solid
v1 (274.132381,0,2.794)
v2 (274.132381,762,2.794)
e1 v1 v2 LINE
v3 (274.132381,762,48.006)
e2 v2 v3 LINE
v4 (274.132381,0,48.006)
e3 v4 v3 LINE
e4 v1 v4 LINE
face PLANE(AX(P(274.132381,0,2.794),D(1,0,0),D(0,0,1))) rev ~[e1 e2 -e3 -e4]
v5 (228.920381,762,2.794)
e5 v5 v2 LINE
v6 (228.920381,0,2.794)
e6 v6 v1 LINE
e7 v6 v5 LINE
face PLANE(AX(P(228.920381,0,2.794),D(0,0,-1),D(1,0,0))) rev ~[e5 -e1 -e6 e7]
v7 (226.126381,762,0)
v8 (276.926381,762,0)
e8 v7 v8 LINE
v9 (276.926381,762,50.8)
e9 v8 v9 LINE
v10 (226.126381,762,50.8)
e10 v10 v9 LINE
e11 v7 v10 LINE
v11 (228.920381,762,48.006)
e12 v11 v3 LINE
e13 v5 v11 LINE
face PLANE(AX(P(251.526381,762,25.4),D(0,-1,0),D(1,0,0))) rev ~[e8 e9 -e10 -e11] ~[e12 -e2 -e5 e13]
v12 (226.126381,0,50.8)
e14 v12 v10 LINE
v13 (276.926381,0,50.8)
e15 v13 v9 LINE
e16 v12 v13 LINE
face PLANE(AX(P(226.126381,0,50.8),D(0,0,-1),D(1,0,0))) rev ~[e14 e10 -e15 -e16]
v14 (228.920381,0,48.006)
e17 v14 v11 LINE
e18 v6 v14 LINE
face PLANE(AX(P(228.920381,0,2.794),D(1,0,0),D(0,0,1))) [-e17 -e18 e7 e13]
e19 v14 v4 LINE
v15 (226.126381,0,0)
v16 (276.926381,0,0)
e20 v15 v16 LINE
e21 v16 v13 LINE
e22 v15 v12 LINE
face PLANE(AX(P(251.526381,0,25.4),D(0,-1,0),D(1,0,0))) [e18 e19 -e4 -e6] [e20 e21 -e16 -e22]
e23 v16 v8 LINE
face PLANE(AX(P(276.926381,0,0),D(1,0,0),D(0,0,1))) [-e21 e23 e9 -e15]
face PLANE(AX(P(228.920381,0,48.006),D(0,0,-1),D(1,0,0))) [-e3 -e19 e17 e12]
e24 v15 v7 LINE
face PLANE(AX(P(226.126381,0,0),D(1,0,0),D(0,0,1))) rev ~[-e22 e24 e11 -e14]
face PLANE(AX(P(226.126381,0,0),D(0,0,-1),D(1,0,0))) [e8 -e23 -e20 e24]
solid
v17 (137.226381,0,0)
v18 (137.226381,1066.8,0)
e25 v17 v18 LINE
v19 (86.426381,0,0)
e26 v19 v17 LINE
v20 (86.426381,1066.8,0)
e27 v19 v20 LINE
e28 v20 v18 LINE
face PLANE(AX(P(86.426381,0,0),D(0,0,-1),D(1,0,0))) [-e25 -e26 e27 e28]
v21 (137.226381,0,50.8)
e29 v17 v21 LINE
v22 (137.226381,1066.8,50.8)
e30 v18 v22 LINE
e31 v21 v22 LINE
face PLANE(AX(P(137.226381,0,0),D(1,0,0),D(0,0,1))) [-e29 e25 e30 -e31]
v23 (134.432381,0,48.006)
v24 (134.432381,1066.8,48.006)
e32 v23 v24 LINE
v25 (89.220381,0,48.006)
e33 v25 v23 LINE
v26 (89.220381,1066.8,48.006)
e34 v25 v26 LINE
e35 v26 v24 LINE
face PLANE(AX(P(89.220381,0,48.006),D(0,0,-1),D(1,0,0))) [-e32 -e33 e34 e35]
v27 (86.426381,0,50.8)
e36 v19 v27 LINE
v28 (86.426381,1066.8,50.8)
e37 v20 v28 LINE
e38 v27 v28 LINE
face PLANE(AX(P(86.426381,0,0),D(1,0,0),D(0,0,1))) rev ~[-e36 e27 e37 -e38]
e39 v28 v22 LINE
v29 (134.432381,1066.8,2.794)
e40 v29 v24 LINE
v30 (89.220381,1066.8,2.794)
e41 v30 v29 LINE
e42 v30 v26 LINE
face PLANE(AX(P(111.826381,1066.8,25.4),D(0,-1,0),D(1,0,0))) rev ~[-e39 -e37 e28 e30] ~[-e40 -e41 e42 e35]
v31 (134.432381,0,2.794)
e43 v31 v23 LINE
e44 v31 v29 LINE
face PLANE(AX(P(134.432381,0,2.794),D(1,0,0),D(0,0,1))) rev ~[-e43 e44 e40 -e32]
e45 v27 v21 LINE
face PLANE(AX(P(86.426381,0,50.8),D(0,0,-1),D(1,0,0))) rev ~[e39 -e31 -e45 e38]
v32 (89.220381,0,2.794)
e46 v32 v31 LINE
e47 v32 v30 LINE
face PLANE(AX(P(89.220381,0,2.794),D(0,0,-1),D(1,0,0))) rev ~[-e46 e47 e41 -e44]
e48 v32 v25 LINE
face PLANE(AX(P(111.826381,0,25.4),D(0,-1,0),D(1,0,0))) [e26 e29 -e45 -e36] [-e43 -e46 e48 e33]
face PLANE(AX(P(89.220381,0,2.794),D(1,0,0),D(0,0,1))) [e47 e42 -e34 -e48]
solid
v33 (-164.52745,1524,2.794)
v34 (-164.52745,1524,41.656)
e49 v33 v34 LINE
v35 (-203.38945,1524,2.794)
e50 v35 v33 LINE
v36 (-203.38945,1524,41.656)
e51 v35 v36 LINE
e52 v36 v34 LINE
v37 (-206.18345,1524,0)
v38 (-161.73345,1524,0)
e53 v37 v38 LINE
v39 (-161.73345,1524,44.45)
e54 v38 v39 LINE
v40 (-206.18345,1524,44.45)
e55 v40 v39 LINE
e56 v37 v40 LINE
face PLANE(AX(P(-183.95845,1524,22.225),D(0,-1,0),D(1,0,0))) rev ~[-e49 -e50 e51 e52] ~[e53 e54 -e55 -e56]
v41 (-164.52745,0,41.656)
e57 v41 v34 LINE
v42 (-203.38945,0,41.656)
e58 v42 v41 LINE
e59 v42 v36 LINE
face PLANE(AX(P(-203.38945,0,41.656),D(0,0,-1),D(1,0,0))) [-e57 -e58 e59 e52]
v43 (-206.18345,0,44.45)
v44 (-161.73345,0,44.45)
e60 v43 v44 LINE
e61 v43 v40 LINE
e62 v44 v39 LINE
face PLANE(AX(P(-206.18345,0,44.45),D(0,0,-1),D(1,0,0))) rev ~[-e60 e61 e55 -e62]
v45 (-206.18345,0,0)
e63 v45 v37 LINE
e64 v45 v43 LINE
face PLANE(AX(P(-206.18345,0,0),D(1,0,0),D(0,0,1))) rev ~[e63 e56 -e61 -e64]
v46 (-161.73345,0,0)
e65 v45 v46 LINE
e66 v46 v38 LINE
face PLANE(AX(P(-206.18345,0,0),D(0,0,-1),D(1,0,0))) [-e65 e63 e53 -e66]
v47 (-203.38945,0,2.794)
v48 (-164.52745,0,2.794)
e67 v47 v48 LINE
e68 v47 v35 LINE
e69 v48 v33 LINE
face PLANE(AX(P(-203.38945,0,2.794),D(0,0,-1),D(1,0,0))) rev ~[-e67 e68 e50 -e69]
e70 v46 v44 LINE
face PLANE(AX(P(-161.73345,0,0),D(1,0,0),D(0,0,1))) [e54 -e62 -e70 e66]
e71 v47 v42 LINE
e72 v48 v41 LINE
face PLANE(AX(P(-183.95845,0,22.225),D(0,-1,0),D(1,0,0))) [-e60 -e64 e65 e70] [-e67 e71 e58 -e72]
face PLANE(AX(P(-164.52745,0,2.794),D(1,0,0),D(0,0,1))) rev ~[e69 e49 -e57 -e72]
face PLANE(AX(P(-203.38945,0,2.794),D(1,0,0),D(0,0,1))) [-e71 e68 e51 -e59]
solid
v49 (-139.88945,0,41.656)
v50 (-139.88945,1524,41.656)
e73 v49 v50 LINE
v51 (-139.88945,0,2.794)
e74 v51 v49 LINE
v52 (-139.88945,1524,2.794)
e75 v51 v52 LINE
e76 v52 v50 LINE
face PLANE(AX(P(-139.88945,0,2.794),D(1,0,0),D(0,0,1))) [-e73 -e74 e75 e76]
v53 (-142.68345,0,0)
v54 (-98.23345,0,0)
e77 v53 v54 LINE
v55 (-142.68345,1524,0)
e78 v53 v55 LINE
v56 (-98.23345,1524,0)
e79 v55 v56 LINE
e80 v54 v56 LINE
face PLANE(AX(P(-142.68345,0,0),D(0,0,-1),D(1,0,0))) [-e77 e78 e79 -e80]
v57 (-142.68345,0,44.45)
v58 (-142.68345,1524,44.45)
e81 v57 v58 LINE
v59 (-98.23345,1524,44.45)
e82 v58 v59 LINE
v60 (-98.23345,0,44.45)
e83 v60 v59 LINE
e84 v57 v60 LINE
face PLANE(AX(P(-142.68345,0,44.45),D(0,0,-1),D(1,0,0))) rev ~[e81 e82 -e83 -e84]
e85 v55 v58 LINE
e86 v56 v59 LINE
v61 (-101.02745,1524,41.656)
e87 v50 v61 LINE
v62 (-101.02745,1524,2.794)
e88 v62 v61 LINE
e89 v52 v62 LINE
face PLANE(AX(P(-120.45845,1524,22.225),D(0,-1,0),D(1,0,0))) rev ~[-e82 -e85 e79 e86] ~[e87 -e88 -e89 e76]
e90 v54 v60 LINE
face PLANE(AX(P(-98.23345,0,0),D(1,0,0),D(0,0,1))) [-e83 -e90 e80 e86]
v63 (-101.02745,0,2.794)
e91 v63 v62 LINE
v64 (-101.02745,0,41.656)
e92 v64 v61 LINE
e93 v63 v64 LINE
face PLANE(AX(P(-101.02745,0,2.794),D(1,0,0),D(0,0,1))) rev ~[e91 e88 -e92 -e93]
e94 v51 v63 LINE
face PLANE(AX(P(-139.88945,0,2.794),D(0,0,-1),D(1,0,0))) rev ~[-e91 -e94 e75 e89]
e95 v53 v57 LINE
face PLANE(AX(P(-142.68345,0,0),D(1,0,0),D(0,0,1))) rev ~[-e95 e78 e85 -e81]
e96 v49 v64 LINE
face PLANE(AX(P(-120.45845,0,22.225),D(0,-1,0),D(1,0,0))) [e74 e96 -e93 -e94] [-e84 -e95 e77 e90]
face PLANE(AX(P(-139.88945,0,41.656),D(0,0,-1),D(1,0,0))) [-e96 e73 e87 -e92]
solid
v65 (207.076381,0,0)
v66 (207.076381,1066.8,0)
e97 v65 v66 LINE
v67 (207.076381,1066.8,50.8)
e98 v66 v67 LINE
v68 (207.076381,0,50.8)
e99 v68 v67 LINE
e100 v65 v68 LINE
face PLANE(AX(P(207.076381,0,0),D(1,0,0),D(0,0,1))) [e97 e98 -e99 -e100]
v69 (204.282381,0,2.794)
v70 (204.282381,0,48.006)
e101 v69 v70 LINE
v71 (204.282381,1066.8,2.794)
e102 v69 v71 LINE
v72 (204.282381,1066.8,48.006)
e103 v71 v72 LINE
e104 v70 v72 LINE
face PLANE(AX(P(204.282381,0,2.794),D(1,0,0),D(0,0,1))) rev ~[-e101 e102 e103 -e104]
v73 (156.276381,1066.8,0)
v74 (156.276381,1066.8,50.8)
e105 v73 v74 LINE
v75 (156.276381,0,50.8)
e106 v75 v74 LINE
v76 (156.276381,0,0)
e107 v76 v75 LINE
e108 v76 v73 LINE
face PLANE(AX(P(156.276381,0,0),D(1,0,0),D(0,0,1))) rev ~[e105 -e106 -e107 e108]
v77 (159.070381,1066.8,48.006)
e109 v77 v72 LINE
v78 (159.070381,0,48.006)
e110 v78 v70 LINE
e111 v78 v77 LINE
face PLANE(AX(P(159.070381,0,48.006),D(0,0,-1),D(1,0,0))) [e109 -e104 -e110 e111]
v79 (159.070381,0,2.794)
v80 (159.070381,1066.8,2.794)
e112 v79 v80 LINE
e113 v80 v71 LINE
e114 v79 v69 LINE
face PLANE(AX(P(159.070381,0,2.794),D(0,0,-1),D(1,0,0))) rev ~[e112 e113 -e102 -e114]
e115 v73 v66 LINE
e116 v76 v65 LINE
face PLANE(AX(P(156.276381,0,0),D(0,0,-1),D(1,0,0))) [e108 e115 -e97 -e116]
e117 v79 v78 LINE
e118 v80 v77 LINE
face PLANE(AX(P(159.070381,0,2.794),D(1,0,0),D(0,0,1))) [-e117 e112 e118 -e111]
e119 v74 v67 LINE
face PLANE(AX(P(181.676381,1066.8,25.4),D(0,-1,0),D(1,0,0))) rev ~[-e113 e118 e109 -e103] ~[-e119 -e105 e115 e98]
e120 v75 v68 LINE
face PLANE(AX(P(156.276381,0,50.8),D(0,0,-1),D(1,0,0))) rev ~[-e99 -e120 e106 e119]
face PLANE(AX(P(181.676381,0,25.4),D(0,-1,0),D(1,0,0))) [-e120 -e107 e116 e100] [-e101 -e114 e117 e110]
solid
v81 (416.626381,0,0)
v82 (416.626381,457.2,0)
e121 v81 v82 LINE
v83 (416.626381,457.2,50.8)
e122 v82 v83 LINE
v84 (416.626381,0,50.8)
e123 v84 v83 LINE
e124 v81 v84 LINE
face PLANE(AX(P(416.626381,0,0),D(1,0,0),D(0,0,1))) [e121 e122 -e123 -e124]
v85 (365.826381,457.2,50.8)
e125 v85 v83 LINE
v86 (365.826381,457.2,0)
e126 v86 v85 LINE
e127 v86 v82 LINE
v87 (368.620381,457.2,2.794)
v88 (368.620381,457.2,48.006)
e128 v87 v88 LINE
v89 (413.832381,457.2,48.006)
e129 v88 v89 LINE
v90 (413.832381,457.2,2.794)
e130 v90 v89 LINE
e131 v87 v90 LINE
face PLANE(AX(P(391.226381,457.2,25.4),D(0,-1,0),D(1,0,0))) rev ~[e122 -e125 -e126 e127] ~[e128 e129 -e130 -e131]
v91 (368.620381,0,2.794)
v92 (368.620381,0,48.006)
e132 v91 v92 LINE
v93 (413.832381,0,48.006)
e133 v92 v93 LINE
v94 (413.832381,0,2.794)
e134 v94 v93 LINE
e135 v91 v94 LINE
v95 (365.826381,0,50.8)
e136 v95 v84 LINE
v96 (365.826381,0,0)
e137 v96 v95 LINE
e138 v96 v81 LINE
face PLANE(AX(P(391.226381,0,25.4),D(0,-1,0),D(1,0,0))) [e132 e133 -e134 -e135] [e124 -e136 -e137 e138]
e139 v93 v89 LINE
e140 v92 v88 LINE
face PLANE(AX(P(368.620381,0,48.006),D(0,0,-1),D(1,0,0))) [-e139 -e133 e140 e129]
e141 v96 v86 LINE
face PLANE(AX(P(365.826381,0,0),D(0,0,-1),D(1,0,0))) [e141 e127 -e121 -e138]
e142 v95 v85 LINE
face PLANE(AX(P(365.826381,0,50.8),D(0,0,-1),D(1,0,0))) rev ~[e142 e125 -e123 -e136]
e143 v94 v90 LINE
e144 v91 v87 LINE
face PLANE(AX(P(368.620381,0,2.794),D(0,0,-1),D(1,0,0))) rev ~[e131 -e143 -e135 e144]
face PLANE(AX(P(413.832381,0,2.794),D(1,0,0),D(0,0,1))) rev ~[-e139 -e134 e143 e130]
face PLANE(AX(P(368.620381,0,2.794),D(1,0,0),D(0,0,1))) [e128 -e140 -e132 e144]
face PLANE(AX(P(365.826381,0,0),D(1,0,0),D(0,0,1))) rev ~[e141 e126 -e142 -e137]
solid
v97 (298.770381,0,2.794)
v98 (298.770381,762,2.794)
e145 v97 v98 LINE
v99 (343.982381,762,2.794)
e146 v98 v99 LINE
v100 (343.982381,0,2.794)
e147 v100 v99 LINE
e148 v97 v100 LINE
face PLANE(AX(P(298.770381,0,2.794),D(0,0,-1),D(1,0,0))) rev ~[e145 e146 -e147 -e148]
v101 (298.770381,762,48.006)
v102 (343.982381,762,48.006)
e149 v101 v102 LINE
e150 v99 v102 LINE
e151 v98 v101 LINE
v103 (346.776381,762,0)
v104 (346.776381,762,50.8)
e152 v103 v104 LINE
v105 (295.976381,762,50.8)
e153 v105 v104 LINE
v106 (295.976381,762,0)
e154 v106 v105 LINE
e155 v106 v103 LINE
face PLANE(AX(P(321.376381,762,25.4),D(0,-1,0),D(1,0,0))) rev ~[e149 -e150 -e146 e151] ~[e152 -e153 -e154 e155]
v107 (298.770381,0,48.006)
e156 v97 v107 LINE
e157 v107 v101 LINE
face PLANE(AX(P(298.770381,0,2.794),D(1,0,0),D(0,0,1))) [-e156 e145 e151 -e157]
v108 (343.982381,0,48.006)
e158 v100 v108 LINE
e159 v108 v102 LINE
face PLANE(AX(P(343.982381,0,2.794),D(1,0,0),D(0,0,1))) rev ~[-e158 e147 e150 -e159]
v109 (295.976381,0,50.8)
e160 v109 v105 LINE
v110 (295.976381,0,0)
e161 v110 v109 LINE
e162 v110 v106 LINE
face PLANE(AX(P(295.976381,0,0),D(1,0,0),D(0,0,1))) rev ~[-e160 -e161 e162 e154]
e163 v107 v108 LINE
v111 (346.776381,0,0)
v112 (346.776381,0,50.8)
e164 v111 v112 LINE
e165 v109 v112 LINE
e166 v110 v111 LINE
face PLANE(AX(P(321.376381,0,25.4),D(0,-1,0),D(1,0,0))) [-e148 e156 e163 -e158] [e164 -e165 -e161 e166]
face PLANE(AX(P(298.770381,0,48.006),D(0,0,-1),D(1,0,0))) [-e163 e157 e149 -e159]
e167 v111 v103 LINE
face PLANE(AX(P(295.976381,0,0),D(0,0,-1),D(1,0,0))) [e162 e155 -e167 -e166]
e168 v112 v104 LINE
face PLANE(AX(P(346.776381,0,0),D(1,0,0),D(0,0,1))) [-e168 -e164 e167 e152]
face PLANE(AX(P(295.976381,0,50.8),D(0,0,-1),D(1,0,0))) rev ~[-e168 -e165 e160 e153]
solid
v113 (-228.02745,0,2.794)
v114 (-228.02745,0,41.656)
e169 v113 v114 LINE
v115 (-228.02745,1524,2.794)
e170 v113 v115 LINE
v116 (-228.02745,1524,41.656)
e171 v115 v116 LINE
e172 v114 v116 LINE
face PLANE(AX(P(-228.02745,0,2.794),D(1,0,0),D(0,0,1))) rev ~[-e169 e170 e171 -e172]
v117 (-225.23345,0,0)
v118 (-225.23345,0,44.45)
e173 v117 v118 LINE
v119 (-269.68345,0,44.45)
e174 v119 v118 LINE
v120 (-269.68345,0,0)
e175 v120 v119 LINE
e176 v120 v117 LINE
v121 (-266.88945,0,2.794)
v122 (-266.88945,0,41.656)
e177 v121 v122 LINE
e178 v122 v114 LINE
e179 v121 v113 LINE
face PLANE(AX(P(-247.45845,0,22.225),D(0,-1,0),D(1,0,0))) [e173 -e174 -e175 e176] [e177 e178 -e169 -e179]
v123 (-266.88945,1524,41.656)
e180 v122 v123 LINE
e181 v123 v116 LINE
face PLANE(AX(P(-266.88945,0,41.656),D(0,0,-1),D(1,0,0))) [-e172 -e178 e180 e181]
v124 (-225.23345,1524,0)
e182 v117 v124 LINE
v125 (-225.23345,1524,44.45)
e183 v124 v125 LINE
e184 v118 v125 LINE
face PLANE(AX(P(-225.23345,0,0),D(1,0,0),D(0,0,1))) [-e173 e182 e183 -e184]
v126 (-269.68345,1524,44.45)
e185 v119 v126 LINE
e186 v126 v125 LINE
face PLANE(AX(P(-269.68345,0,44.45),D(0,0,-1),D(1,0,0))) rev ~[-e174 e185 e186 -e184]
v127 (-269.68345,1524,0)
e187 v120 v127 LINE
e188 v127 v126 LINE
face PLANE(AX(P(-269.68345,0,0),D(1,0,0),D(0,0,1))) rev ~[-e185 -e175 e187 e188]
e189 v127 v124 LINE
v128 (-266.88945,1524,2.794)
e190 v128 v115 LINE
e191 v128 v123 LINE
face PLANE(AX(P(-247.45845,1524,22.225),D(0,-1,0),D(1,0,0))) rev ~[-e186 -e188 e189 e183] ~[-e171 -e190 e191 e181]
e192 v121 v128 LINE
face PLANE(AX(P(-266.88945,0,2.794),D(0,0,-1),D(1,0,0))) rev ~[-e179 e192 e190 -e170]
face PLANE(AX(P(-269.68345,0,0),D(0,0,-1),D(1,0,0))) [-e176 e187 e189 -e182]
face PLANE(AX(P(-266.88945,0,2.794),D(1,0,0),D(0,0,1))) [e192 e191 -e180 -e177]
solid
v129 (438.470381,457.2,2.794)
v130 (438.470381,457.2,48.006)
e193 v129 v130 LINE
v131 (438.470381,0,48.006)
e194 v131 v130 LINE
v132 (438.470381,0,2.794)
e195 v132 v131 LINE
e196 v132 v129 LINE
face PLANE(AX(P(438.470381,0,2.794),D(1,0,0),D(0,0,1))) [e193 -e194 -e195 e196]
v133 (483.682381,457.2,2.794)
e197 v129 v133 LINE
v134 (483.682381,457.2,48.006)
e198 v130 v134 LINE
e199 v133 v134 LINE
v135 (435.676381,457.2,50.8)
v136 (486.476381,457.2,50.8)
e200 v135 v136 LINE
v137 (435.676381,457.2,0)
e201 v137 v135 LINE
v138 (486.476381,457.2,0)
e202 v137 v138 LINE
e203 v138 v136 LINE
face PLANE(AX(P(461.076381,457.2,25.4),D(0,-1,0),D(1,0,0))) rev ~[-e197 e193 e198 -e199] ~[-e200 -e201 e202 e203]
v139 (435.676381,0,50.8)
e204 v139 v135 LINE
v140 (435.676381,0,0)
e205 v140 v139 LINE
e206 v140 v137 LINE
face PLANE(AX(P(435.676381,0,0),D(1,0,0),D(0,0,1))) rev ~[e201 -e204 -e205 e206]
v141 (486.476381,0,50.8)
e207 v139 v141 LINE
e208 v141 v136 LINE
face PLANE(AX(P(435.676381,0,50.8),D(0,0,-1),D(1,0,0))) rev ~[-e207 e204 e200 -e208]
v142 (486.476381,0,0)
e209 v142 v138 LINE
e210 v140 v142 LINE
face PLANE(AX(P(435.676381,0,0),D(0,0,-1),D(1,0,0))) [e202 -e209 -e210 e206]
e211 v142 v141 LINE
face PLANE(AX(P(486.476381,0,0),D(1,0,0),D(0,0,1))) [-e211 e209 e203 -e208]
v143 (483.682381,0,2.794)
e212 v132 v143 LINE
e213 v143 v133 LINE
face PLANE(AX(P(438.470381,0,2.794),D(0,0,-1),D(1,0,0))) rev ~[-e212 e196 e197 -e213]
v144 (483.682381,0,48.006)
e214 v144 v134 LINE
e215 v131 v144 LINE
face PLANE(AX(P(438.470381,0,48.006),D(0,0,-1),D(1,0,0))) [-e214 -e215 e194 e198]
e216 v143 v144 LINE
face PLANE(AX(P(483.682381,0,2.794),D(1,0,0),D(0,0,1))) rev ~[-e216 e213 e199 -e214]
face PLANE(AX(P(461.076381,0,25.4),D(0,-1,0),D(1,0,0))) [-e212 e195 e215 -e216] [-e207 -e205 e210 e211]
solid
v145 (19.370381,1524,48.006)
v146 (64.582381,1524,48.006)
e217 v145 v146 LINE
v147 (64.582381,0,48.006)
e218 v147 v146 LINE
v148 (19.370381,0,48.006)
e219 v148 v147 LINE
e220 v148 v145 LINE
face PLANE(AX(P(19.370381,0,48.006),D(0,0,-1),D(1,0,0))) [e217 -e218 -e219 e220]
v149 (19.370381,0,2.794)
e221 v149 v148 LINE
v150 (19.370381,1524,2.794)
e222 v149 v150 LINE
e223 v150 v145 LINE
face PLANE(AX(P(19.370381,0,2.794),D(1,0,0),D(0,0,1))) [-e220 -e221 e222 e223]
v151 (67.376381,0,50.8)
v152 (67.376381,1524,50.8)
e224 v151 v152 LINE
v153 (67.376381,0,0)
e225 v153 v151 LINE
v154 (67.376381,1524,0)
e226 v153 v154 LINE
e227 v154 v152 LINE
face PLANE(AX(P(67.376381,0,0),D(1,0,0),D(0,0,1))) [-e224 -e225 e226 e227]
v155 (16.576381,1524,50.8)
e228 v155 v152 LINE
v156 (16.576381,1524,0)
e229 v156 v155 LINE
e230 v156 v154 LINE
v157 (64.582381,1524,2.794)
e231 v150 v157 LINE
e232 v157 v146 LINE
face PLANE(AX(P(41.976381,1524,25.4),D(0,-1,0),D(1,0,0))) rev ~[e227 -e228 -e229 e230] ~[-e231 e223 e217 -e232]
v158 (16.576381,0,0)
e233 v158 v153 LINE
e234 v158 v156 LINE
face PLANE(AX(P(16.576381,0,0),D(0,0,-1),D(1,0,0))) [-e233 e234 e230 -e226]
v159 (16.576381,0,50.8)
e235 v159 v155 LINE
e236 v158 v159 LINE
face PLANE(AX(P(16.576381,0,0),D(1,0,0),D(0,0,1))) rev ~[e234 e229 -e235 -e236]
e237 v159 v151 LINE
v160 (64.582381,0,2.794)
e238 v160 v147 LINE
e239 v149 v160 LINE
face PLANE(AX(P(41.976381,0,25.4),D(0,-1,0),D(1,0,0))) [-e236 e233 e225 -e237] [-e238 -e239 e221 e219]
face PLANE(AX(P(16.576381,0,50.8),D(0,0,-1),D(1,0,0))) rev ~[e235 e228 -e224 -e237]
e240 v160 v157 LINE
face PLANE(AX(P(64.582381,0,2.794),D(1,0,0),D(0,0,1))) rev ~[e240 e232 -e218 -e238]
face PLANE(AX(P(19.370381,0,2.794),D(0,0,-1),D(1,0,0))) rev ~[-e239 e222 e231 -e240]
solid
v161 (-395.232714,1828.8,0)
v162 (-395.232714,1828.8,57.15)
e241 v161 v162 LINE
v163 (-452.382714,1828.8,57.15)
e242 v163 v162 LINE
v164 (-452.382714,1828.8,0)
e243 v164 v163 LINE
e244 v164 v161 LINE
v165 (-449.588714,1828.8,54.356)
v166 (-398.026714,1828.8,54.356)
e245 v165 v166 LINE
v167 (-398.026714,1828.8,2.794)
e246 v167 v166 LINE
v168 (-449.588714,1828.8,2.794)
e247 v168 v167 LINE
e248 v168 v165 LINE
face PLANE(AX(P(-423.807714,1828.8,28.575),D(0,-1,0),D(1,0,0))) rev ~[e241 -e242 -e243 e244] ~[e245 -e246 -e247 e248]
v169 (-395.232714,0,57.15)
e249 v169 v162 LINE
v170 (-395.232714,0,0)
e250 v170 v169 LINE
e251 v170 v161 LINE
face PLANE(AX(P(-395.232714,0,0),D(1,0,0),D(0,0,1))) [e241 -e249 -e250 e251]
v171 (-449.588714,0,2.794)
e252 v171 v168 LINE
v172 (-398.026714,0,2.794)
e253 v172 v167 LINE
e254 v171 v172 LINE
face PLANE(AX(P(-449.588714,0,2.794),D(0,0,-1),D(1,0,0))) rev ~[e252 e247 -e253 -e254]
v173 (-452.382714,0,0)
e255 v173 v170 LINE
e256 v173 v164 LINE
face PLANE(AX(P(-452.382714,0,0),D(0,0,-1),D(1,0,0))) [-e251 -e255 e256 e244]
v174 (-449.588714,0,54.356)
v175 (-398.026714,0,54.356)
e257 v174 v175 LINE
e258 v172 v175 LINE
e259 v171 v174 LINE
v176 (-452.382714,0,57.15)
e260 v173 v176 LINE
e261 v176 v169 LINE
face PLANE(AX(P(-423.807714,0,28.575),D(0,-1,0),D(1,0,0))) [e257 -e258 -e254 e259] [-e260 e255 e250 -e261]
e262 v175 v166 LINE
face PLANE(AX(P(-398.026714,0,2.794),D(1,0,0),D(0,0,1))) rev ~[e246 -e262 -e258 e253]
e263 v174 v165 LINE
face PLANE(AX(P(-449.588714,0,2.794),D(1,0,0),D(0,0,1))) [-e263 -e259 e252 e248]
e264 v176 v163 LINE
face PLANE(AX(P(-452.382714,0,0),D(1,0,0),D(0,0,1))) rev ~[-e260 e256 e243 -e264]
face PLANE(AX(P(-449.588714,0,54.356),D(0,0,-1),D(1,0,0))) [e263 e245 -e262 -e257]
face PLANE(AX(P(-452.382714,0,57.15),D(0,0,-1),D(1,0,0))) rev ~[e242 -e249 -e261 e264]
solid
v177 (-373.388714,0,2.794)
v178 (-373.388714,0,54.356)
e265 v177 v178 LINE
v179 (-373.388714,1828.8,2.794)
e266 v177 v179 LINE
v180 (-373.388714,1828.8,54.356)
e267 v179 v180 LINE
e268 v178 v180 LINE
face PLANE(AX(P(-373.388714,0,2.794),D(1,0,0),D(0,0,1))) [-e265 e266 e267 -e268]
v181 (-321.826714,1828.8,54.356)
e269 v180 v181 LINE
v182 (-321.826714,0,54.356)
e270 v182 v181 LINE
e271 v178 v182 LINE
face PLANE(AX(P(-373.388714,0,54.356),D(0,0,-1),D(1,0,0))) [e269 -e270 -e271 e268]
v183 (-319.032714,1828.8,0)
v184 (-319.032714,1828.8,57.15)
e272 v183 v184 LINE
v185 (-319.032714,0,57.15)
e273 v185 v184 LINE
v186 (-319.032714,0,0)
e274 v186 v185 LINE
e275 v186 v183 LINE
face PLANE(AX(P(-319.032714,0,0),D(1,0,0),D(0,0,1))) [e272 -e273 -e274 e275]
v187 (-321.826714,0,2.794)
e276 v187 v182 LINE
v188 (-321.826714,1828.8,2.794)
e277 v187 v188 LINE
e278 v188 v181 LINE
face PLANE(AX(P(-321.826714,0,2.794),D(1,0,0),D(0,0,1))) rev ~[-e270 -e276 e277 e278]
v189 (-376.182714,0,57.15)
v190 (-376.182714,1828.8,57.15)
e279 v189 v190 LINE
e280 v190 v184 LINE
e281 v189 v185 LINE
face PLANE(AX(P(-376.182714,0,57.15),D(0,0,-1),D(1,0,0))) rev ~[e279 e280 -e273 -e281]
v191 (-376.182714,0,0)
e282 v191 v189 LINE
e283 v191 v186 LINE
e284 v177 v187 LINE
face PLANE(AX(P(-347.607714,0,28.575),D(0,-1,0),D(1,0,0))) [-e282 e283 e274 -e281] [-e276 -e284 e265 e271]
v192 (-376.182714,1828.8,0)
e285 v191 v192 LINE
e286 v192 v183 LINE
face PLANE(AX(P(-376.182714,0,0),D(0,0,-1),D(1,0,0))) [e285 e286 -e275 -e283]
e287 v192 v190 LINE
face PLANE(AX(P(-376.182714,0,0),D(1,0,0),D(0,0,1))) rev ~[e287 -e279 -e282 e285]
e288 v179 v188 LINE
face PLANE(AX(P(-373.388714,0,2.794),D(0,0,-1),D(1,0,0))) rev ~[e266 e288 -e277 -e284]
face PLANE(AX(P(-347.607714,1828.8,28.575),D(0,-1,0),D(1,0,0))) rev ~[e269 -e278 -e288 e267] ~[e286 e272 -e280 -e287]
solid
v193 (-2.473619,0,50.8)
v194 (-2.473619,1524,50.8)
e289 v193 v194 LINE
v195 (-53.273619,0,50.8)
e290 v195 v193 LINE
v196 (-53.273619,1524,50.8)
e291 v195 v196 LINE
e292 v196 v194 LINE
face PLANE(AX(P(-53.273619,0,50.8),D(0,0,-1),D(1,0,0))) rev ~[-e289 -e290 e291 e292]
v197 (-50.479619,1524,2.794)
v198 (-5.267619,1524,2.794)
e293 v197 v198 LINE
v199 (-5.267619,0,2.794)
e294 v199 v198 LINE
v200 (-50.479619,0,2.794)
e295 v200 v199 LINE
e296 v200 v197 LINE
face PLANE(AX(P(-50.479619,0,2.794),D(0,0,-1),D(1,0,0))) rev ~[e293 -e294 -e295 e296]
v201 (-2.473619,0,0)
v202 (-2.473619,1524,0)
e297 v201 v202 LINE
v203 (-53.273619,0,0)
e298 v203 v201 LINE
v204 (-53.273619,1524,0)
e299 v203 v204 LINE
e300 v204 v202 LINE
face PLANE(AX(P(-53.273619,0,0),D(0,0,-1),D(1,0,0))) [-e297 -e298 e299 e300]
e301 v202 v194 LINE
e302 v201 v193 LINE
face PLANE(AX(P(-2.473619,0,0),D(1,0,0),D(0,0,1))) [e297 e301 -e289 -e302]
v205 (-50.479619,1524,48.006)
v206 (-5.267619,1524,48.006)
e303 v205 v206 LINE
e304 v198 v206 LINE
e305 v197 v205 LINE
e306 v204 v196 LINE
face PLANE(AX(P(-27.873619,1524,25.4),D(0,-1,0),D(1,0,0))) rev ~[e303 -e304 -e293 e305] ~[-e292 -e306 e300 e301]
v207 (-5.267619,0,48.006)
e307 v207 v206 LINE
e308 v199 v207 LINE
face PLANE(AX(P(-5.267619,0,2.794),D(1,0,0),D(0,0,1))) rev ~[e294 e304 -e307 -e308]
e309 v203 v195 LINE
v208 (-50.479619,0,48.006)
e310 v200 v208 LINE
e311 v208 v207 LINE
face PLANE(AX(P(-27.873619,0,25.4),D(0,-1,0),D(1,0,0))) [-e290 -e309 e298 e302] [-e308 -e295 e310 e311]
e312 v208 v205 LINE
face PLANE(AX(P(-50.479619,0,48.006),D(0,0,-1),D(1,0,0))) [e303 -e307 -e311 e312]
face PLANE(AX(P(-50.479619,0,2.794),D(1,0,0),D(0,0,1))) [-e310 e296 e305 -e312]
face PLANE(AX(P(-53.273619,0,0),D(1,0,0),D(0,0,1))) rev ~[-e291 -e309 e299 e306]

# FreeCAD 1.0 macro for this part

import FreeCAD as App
import Part
import Sketcher

V = App.Vector
Q = App.Units.Quantity

doc = App.newDocument("Part")
params = doc.addObject("Spreadsheet::Sheet", "Params")
for row, (alias, value) in enumerate([
    ("sketch1_width", "1.75 in"),
    ("sketch1_width2", "1.53 in"),
    ("pad1_length", "60 in"),
    ("sketch2_width", "2 in"),
    ("sketch2_width2", "1.78 in"),
    ("pad2_length", "60 in"),
    ("sketch3_width", "2 in"),
    ("sketch3_width2", "1.78 in"),
    ("pad3_length", "42 in"),
    ("sketch4_width", "2 in"),
    ("sketch4_width2", "1.78 in"),
    ("pad4_length", "30 in"),
    ("sketch5_width", "2 in"),
    ("sketch5_width2", "1.78 in"),
    ("pad5_length", "18 in"),
    ("sketch6_width", "2.25 in"),
    ("sketch6_width2", "2.03 in"),
    ("pad6_length", "72 in"),
], start=1):
    params.set(f"A{row}", alias)
    params.set(f"B{row}", "=" + value)
    params.setAlias(f"B{row}", alias)

body = doc.addObject("PartDesign::Body", "Body")
body.AllowCompound = True

sketch1 = body.newObject("Sketcher::SketchObject", "Sketch")
sketch1.AttachmentSupport = (doc.getObject("XZ_Plane"), [""])
sketch1.MapMode = "FlatFace"
sketch1.addGeometry([
    Part.LineSegment(V(-270, 44, 0), V(-270, 0, 0)),
    Part.LineSegment(V(-270, 0, 0), V(-225, 0, 0)),
    Part.LineSegment(V(-225, 0, 0), V(-225, 44, 0)),
    Part.LineSegment(V(-225, 44, 0), V(-270, 44, 0)),
    Part.LineSegment(V(-228, 3, 0), V(-267, 3, 0)),
    Part.LineSegment(V(-267, 3, 0), V(-267, 42, 0)),
    Part.LineSegment(V(-267, 42, 0), V(-228, 42, 0)),
    Part.LineSegment(V(-228, 42, 0), V(-228, 3, 0)),
    Part.LineSegment(V(-206, 44, 0), V(-206, 0, 0)),
    Part.LineSegment(V(-206, 0, 0), V(-162, 0, 0)),
    Part.LineSegment(V(-162, 0, 0), V(-162, 44, 0)),
    Part.LineSegment(V(-162, 44, 0), V(-206, 44, 0)),
    Part.LineSegment(V(-165, 3, 0), V(-203, 3, 0)),
    Part.LineSegment(V(-203, 3, 0), V(-203, 42, 0)),
    Part.LineSegment(V(-203, 42, 0), V(-165, 42, 0)),
    Part.LineSegment(V(-165, 42, 0), V(-165, 3, 0)),
    Part.LineSegment(V(-143, 44, 0), V(-143, 0, 0)),
    Part.LineSegment(V(-143, 0, 0), V(-98, 0, 0)),
    Part.LineSegment(V(-98, 0, 0), V(-98, 44, 0)),
    Part.LineSegment(V(-98, 44, 0), V(-143, 44, 0)),
    Part.LineSegment(V(-101, 3, 0), V(-140, 3, 0)),
    Part.LineSegment(V(-140, 3, 0), V(-140, 42, 0)),
    Part.LineSegment(V(-140, 42, 0), V(-101, 42, 0)),
    Part.LineSegment(V(-101, 42, 0), V(-101, 3, 0)),
], False)
sketch1.addConstraint([
    Sketcher.Constraint("Coincident", 0, 2, 1, 1),
    Sketcher.Constraint("Coincident", 1, 2, 2, 1),
    Sketcher.Constraint("Coincident", 2, 2, 3, 1),
    Sketcher.Constraint("Coincident", 3, 2, 0, 1),
    Sketcher.Constraint("Coincident", 4, 2, 5, 1),
    Sketcher.Constraint("Coincident", 5, 2, 6, 1),
    Sketcher.Constraint("Coincident", 6, 2, 7, 1),
    Sketcher.Constraint("Coincident", 7, 2, 4, 1),
    Sketcher.Constraint("Coincident", 8, 2, 9, 1),
    Sketcher.Constraint("Coincident", 9, 2, 10, 1),
    Sketcher.Constraint("Coincident", 10, 2, 11, 1),
    Sketcher.Constraint("Coincident", 11, 2, 8, 1),
    Sketcher.Constraint("Coincident", 12, 2, 13, 1),
    Sketcher.Constraint("Coincident", 13, 2, 14, 1),
    Sketcher.Constraint("Coincident", 14, 2, 15, 1),
    Sketcher.Constraint("Coincident", 15, 2, 12, 1),
    Sketcher.Constraint("Coincident", 16, 2, 17, 1),
    Sketcher.Constraint("Coincident", 17, 2, 18, 1),
    Sketcher.Constraint("Coincident", 18, 2, 19, 1),
    Sketcher.Constraint("Coincident", 19, 2, 16, 1),
    Sketcher.Constraint("Coincident", 20, 2, 21, 1),
    Sketcher.Constraint("Coincident", 21, 2, 22, 1),
    Sketcher.Constraint("Coincident", 22, 2, 23, 1),
    Sketcher.Constraint("Coincident", 23, 2, 20, 1),
    Sketcher.Constraint("Vertical", 0),
    Sketcher.Constraint("Horizontal", 1),
    Sketcher.Constraint("Vertical", 2),
    Sketcher.Constraint("Horizontal", 3),
    Sketcher.Constraint("Horizontal", 4),
    Sketcher.Constraint("Vertical", 5),
    Sketcher.Constraint("Horizontal", 6),
    Sketcher.Constraint("Vertical", 7),
    Sketcher.Constraint("Vertical", 8),
    Sketcher.Constraint("Horizontal", 9),
    Sketcher.Constraint("Vertical", 10),
    Sketcher.Constraint("Horizontal", 11),
    Sketcher.Constraint("Horizontal", 12),
    Sketcher.Constraint("Vertical", 13),
    Sketcher.Constraint("Horizontal", 14),
    Sketcher.Constraint("Vertical", 15),
    Sketcher.Constraint("Vertical", 16),
    Sketcher.Constraint("Horizontal", 17),
    Sketcher.Constraint("Vertical", 18),
    Sketcher.Constraint("Horizontal", 19),
    Sketcher.Constraint("Horizontal", 20),
    Sketcher.Constraint("Vertical", 21),
    Sketcher.Constraint("Horizontal", 22),
    Sketcher.Constraint("Vertical", 23),
    Sketcher.Constraint("PointOnObject", 0, 2, -1),
    Sketcher.Constraint("PointOnObject", 8, 2, -1),
    Sketcher.Constraint("PointOnObject", 16, 2, -1),
    Sketcher.Constraint("Horizontal", 3, 2, 10, 2),
    Sketcher.Constraint("Horizontal", 7, 2, 12, 2),
    Sketcher.Constraint("Horizontal", 6, 2, 13, 2),
    Sketcher.Constraint("Horizontal", 11, 2, 18, 2),
    Sketcher.Constraint("Horizontal", 15, 2, 20, 2),
    Sketcher.Constraint("Horizontal", 14, 2, 21, 2),
    Sketcher.Constraint("Equal", 3, 9),
    Sketcher.Constraint("Equal", 6, 12),
    Sketcher.Constraint("Equal", 11, 17),
    Sketcher.Constraint("Equal", 14, 20),
    Sketcher.Constraint("Equal", 19, 0),
    Sketcher.Constraint("Equal", 22, 5),
    Sketcher.Constraint("DistanceX", 1, 1, 1, 2, Q("1.75 in")),
    Sketcher.Constraint("DistanceX", 4, 2, 4, 1, Q("1.53 in")),
    Sketcher.Constraint("DistanceX", 1, 2, 9, 2, Q("2.5 in")),
    Sketcher.Constraint("DistanceX", 9, 2, 17, 2, Q("2.5 in")),
    Sketcher.Constraint("DistanceY", -1, 1, 4, 2, Q("0.11 in")),
    Sketcher.Constraint("DistanceX", 0, 2, 4, 2, Q("0.11 in")),
    Sketcher.Constraint("DistanceX", 8, 2, 12, 2, Q("0.11 in")),
    Sketcher.Constraint("DistanceX", 16, 2, 20, 2, Q("0.11 in")),
    Sketcher.Constraint("DistanceX", 0, 2, -1, 1, 269.68345),
])
sketch1.setExpression("Constraints[63]", "Params.sketch1_width")
sketch1.setExpression("Constraints[64]", "Params.sketch1_width2")
pad1 = body.newObject("PartDesign::Pad", "Pad")
pad1.Profile = sketch1
pad1.setExpression("Length", "Params.pad1_length")
pad1.Reversed = True
body2 = doc.addObject("PartDesign::Body", "Body001")
body2.AllowCompound = True

sketch2 = body2.newObject("Sketcher::SketchObject", "Sketch001")
sketch2.AttachmentSupport = (doc.getObject("XZ_Plane001"), [""])
sketch2.MapMode = "FlatFace"
sketch2.addGeometry([
    Part.LineSegment(V(-53, 51, 0), V(-53, 0, 0)),
    Part.LineSegment(V(-53, 0, 0), V(-2, 0, 0)),
    Part.LineSegment(V(-2, 0, 0), V(-2, 51, 0)),
    Part.LineSegment(V(-2, 51, 0), V(-53, 51, 0)),
    Part.LineSegment(V(-5, 3, 0), V(-50, 3, 0)),
    Part.LineSegment(V(-50, 3, 0), V(-50, 48, 0)),
    Part.LineSegment(V(-50, 48, 0), V(-5, 48, 0)),
    Part.LineSegment(V(-5, 48, 0), V(-5, 3, 0)),
    Part.LineSegment(V(17, 51, 0), V(17, 0, 0)),
    Part.LineSegment(V(17, 0, 0), V(67, 0, 0)),
    Part.LineSegment(V(67, 0, 0), V(67, 51, 0)),
    Part.LineSegment(V(67, 51, 0), V(17, 51, 0)),
    Part.LineSegment(V(65, 3, 0), V(19, 3, 0)),
    Part.LineSegment(V(19, 3, 0), V(19, 48, 0)),
    Part.LineSegment(V(19, 48, 0), V(65, 48, 0)),
    Part.LineSegment(V(65, 48, 0), V(65, 3, 0)),
], False)
sketch2.addConstraint([
    Sketcher.Constraint("Coincident", 0, 2, 1, 1),
    Sketcher.Constraint("Coincident", 1, 2, 2, 1),
    Sketcher.Constraint("Coincident", 2, 2, 3, 1),
    Sketcher.Constraint("Coincident", 3, 2, 0, 1),
    Sketcher.Constraint("Coincident", 4, 2, 5, 1),
    Sketcher.Constraint("Coincident", 5, 2, 6, 1),
    Sketcher.Constraint("Coincident", 6, 2, 7, 1),
    Sketcher.Constraint("Coincident", 7, 2, 4, 1),
    Sketcher.Constraint("Coincident", 8, 2, 9, 1),
    Sketcher.Constraint("Coincident", 9, 2, 10, 1),
    Sketcher.Constraint("Coincident", 10, 2, 11, 1),
    Sketcher.Constraint("Coincident", 11, 2, 8, 1),
    Sketcher.Constraint("Coincident", 12, 2, 13, 1),
    Sketcher.Constraint("Coincident", 13, 2, 14, 1),
    Sketcher.Constraint("Coincident", 14, 2, 15, 1),
    Sketcher.Constraint("Coincident", 15, 2, 12, 1),
    Sketcher.Constraint("Vertical", 0),
    Sketcher.Constraint("Horizontal", 1),
    Sketcher.Constraint("Vertical", 2),
    Sketcher.Constraint("Horizontal", 3),
    Sketcher.Constraint("Horizontal", 4),
    Sketcher.Constraint("Vertical", 5),
    Sketcher.Constraint("Horizontal", 6),
    Sketcher.Constraint("Vertical", 7),
    Sketcher.Constraint("Vertical", 8),
    Sketcher.Constraint("Horizontal", 9),
    Sketcher.Constraint("Vertical", 10),
    Sketcher.Constraint("Horizontal", 11),
    Sketcher.Constraint("Horizontal", 12),
    Sketcher.Constraint("Vertical", 13),
    Sketcher.Constraint("Horizontal", 14),
    Sketcher.Constraint("Vertical", 15),
    Sketcher.Constraint("PointOnObject", 0, 2, -1),
    Sketcher.Constraint("PointOnObject", 8, 2, -1),
    Sketcher.Constraint("Horizontal", 3, 2, 10, 2),
    Sketcher.Constraint("Horizontal", 7, 2, 12, 2),
    Sketcher.Constraint("Horizontal", 6, 2, 13, 2),
    Sketcher.Constraint("Equal", 3, 9),
    Sketcher.Constraint("Equal", 6, 12),
    Sketcher.Constraint("Equal", 11, 0),
    Sketcher.Constraint("Equal", 14, 5),
    Sketcher.Constraint("DistanceX", 1, 1, 1, 2, Q("2 in")),
    Sketcher.Constraint("DistanceX", 4, 2, 4, 1, Q("1.78 in")),
    Sketcher.Constraint("DistanceY", -1, 1, 4, 2, Q("0.11 in")),
    Sketcher.Constraint("DistanceX", 0, 2, 4, 2, Q("0.11 in")),
    Sketcher.Constraint("DistanceX", 1, 2, 8, 2, Q("0.75 in")),
    Sketcher.Constraint("DistanceX", 8, 2, 12, 2, Q("0.11 in")),
    Sketcher.Constraint("DistanceX", 0, 2, -1, 1, 53.273619),
])
sketch2.setExpression("Constraints[41]", "Params.sketch2_width")
sketch2.setExpression("Constraints[42]", "Params.sketch2_width2")
pad2 = body2.newObject("PartDesign::Pad", "Pad001")
pad2.Profile = sketch2
pad2.setExpression("Length", "Params.pad2_length")
pad2.Reversed = True
body3 = doc.addObject("PartDesign::Body", "Body002")
body3.AllowCompound = True

sketch3 = body3.newObject("Sketcher::SketchObject", "Sketch002")
sketch3.AttachmentSupport = (doc.getObject("XZ_Plane002"), [""])
sketch3.MapMode = "FlatFace"
sketch3.addGeometry([
    Part.LineSegment(V(86, 51, 0), V(86, 0, 0)),
    Part.LineSegment(V(86, 0, 0), V(137, 0, 0)),
    Part.LineSegment(V(137, 0, 0), V(137, 51, 0)),
    Part.LineSegment(V(137, 51, 0), V(86, 51, 0)),
    Part.LineSegment(V(134, 3, 0), V(89, 3, 0)),
    Part.LineSegment(V(89, 3, 0), V(89, 48, 0)),
    Part.LineSegment(V(89, 48, 0), V(134, 48, 0)),
    Part.LineSegment(V(134, 48, 0), V(134, 3, 0)),
    Part.LineSegment(V(156, 51, 0), V(156, 0, 0)),
    Part.LineSegment(V(156, 0, 0), V(207, 0, 0)),
    Part.LineSegment(V(207, 0, 0), V(207, 51, 0)),
    Part.LineSegment(V(207, 51, 0), V(156, 51, 0)),
    Part.LineSegment(V(204, 3, 0), V(159, 3, 0)),
    Part.LineSegment(V(159, 3, 0), V(159, 48, 0)),
    Part.LineSegment(V(159, 48, 0), V(204, 48, 0)),
    Part.LineSegment(V(204, 48, 0), V(204, 3, 0)),
], False)
sketch3.addConstraint([
    Sketcher.Constraint("Coincident", 0, 2, 1, 1),
    Sketcher.Constraint("Coincident", 1, 2, 2, 1),
    Sketcher.Constraint("Coincident", 2, 2, 3, 1),
    Sketcher.Constraint("Coincident", 3, 2, 0, 1),
    Sketcher.Constraint("Coincident", 4, 2, 5, 1),
    Sketcher.Constraint("Coincident", 5, 2, 6, 1),
    Sketcher.Constraint("Coincident", 6, 2, 7, 1),
    Sketcher.Constraint("Coincident", 7, 2, 4, 1),
    Sketcher.Constraint("Coincident", 8, 2, 9, 1),
    Sketcher.Constraint("Coincident", 9, 2, 10, 1),
    Sketcher.Constraint("Coincident", 10, 2, 11, 1),
    Sketcher.Constraint("Coincident", 11, 2, 8, 1),
    Sketcher.Constraint("Coincident", 12, 2, 13, 1),
    Sketcher.Constraint("Coincident", 13, 2, 14, 1),
    Sketcher.Constraint("Coincident", 14, 2, 15, 1),
    Sketcher.Constraint("Coincident", 15, 2, 12, 1),
    Sketcher.Constraint("Vertical", 0),
    Sketcher.Constraint("Horizontal", 1),
    Sketcher.Constraint("Vertical", 2),
    Sketcher.Constraint("Horizontal", 3),
    Sketcher.Constraint("Horizontal", 4),
    Sketcher.Constraint("Vertical", 5),
    Sketcher.Constraint("Horizontal", 6),
    Sketcher.Constraint("Vertical", 7),
    Sketcher.Constraint("Vertical", 8),
    Sketcher.Constraint("Horizontal", 9),
    Sketcher.Constraint("Vertical", 10),
    Sketcher.Constraint("Horizontal", 11),
    Sketcher.Constraint("Horizontal", 12),
    Sketcher.Constraint("Vertical", 13),
    Sketcher.Constraint("Horizontal", 14),
    Sketcher.Constraint("Vertical", 15),
    Sketcher.Constraint("PointOnObject", 0, 2, -1),
    Sketcher.Constraint("PointOnObject", 8, 2, -1),
    Sketcher.Constraint("Horizontal", 3, 2, 10, 2),
    Sketcher.Constraint("Horizontal", 7, 2, 12, 2),
    Sketcher.Constraint("Horizontal", 6, 2, 13, 2),
    Sketcher.Constraint("Equal", 3, 9),
    Sketcher.Constraint("Equal", 6, 12),
    Sketcher.Constraint("Equal", 11, 0),
    Sketcher.Constraint("Equal", 14, 5),
    Sketcher.Constraint("DistanceX", 1, 1, 1, 2, Q("2 in")),
    Sketcher.Constraint("DistanceX", 4, 2, 4, 1, Q("1.78 in")),
    Sketcher.Constraint("DistanceY", -1, 1, 4, 2, Q("0.11 in")),
    Sketcher.Constraint("DistanceX", 0, 2, 4, 2, Q("0.11 in")),
    Sketcher.Constraint("DistanceX", 1, 2, 8, 2, Q("0.75 in")),
    Sketcher.Constraint("DistanceX", 8, 2, 12, 2, Q("0.11 in")),
    Sketcher.Constraint("DistanceX", -1, 1, 0, 2, 86.426381),
])
sketch3.setExpression("Constraints[41]", "Params.sketch3_width")
sketch3.setExpression("Constraints[42]", "Params.sketch3_width2")
pad3 = body3.newObject("PartDesign::Pad", "Pad002")
pad3.Profile = sketch3
pad3.setExpression("Length", "Params.pad3_length")
pad3.Reversed = True
body4 = doc.addObject("PartDesign::Body", "Body003")
body4.AllowCompound = True

sketch4 = body4.newObject("Sketcher::SketchObject", "Sketch003")
sketch4.AttachmentSupport = (doc.getObject("XZ_Plane003"), [""])
sketch4.MapMode = "FlatFace"
sketch4.addGeometry([
    Part.LineSegment(V(226, 51, 0), V(226, 0, 0)),
    Part.LineSegment(V(226, 0, 0), V(277, 0, 0)),
    Part.LineSegment(V(277, 0, 0), V(277, 51, 0)),
    Part.LineSegment(V(277, 51, 0), V(226, 51, 0)),
    Part.LineSegment(V(274, 3, 0), V(229, 3, 0)),
    Part.LineSegment(V(229, 3, 0), V(229, 48, 0)),
    Part.LineSegment(V(229, 48, 0), V(274, 48, 0)),
    Part.LineSegment(V(274, 48, 0), V(274, 3, 0)),
    Part.LineSegment(V(296, 51, 0), V(296, 0, 0)),
    Part.LineSegment(V(296, 0, 0), V(347, 0, 0)),
    Part.LineSegment(V(347, 0, 0), V(347, 51, 0)),
    Part.LineSegment(V(347, 51, 0), V(296, 51, 0)),
    Part.LineSegment(V(344, 3, 0), V(299, 3, 0)),
    Part.LineSegment(V(299, 3, 0), V(299, 48, 0)),
    Part.LineSegment(V(299, 48, 0), V(344, 48, 0)),
    Part.LineSegment(V(344, 48, 0), V(344, 3, 0)),
], False)
sketch4.addConstraint([
    Sketcher.Constraint("Coincident", 0, 2, 1, 1),
    Sketcher.Constraint("Coincident", 1, 2, 2, 1),
    Sketcher.Constraint("Coincident", 2, 2, 3, 1),
    Sketcher.Constraint("Coincident", 3, 2, 0, 1),
    Sketcher.Constraint("Coincident", 4, 2, 5, 1),
    Sketcher.Constraint("Coincident", 5, 2, 6, 1),
    Sketcher.Constraint("Coincident", 6, 2, 7, 1),
    Sketcher.Constraint("Coincident", 7, 2, 4, 1),
    Sketcher.Constraint("Coincident", 8, 2, 9, 1),
    Sketcher.Constraint("Coincident", 9, 2, 10, 1),
    Sketcher.Constraint("Coincident", 10, 2, 11, 1),
    Sketcher.Constraint("Coincident", 11, 2, 8, 1),
    Sketcher.Constraint("Coincident", 12, 2, 13, 1),
    Sketcher.Constraint("Coincident", 13, 2, 14, 1),
    Sketcher.Constraint("Coincident", 14, 2, 15, 1),
    Sketcher.Constraint("Coincident", 15, 2, 12, 1),
    Sketcher.Constraint("Vertical", 0),
    Sketcher.Constraint("Horizontal", 1),
    Sketcher.Constraint("Vertical", 2),
    Sketcher.Constraint("Horizontal", 3),
    Sketcher.Constraint("Horizontal", 4),
    Sketcher.Constraint("Vertical", 5),
    Sketcher.Constraint("Horizontal", 6),
    Sketcher.Constraint("Vertical", 7),
    Sketcher.Constraint("Vertical", 8),
    Sketcher.Constraint("Horizontal", 9),
    Sketcher.Constraint("Vertical", 10),
    Sketcher.Constraint("Horizontal", 11),
    Sketcher.Constraint("Horizontal", 12),
    Sketcher.Constraint("Vertical", 13),
    Sketcher.Constraint("Horizontal", 14),
    Sketcher.Constraint("Vertical", 15),
    Sketcher.Constraint("PointOnObject", 0, 2, -1),
    Sketcher.Constraint("PointOnObject", 8, 2, -1),
    Sketcher.Constraint("Horizontal", 3, 2, 10, 2),
    Sketcher.Constraint("Horizontal", 7, 2, 12, 2),
    Sketcher.Constraint("Horizontal", 6, 2, 13, 2),
    Sketcher.Constraint("Equal", 3, 9),
    Sketcher.Constraint("Equal", 6, 12),
    Sketcher.Constraint("Equal", 11, 0),
    Sketcher.Constraint("Equal", 14, 5),
    Sketcher.Constraint("DistanceX", 1, 1, 1, 2, Q("2 in")),
    Sketcher.Constraint("DistanceX", 4, 2, 4, 1, Q("1.78 in")),
    Sketcher.Constraint("DistanceY", -1, 1, 4, 2, Q("0.11 in")),
    Sketcher.Constraint("DistanceX", 0, 2, 4, 2, Q("0.11 in")),
    Sketcher.Constraint("DistanceX", 1, 2, 8, 2, Q("0.75 in")),
    Sketcher.Constraint("DistanceX", 8, 2, 12, 2, Q("0.11 in")),
    Sketcher.Constraint("DistanceX", -1, 1, 0, 2, 226.126381),
])
sketch4.setExpression("Constraints[41]", "Params.sketch4_width")
sketch4.setExpression("Constraints[42]", "Params.sketch4_width2")
pad4 = body4.newObject("PartDesign::Pad", "Pad003")
pad4.Profile = sketch4
pad4.setExpression("Length", "Params.pad4_length")
pad4.Reversed = True
body5 = doc.addObject("PartDesign::Body", "Body004")
body5.AllowCompound = True

sketch5 = body5.newObject("Sketcher::SketchObject", "Sketch004")
sketch5.AttachmentSupport = (doc.getObject("XZ_Plane004"), [""])
sketch5.MapMode = "FlatFace"
sketch5.addGeometry([
    Part.LineSegment(V(366, 51, 0), V(366, 0, 0)),
    Part.LineSegment(V(366, 0, 0), V(417, 0, 0)),
    Part.LineSegment(V(417, 0, 0), V(417, 51, 0)),
    Part.LineSegment(V(417, 51, 0), V(366, 51, 0)),
    Part.LineSegment(V(414, 3, 0), V(369, 3, 0)),
    Part.LineSegment(V(369, 3, 0), V(369, 48, 0)),
    Part.LineSegment(V(369, 48, 0), V(414, 48, 0)),
    Part.LineSegment(V(414, 48, 0), V(414, 3, 0)),
    Part.LineSegment(V(436, 51, 0), V(436, 0, 0)),
    Part.LineSegment(V(436, 0, 0), V(486, 0, 0)),
    Part.LineSegment(V(486, 0, 0), V(486, 51, 0)),
    Part.LineSegment(V(486, 51, 0), V(436, 51, 0)),
    Part.LineSegment(V(484, 3, 0), V(438, 3, 0)),
    Part.LineSegment(V(438, 3, 0), V(438, 48, 0)),
    Part.LineSegment(V(438, 48, 0), V(484, 48, 0)),
    Part.LineSegment(V(484, 48, 0), V(484, 3, 0)),
], False)
sketch5.addConstraint([
    Sketcher.Constraint("Coincident", 0, 2, 1, 1),
    Sketcher.Constraint("Coincident", 1, 2, 2, 1),
    Sketcher.Constraint("Coincident", 2, 2, 3, 1),
    Sketcher.Constraint("Coincident", 3, 2, 0, 1),
    Sketcher.Constraint("Coincident", 4, 2, 5, 1),
    Sketcher.Constraint("Coincident", 5, 2, 6, 1),
    Sketcher.Constraint("Coincident", 6, 2, 7, 1),
    Sketcher.Constraint("Coincident", 7, 2, 4, 1),
    Sketcher.Constraint("Coincident", 8, 2, 9, 1),
    Sketcher.Constraint("Coincident", 9, 2, 10, 1),
    Sketcher.Constraint("Coincident", 10, 2, 11, 1),
    Sketcher.Constraint("Coincident", 11, 2, 8, 1),
    Sketcher.Constraint("Coincident", 12, 2, 13, 1),
    Sketcher.Constraint("Coincident", 13, 2, 14, 1),
    Sketcher.Constraint("Coincident", 14, 2, 15, 1),
    Sketcher.Constraint("Coincident", 15, 2, 12, 1),
    Sketcher.Constraint("Vertical", 0),
    Sketcher.Constraint("Horizontal", 1),
    Sketcher.Constraint("Vertical", 2),
    Sketcher.Constraint("Horizontal", 3),
    Sketcher.Constraint("Horizontal", 4),
    Sketcher.Constraint("Vertical", 5),
    Sketcher.Constraint("Horizontal", 6),
    Sketcher.Constraint("Vertical", 7),
    Sketcher.Constraint("Vertical", 8),
    Sketcher.Constraint("Horizontal", 9),
    Sketcher.Constraint("Vertical", 10),
    Sketcher.Constraint("Horizontal", 11),
    Sketcher.Constraint("Horizontal", 12),
    Sketcher.Constraint("Vertical", 13),
    Sketcher.Constraint("Horizontal", 14),
    Sketcher.Constraint("Vertical", 15),
    Sketcher.Constraint("PointOnObject", 0, 2, -1),
    Sketcher.Constraint("PointOnObject", 8, 2, -1),
    Sketcher.Constraint("Horizontal", 3, 2, 10, 2),
    Sketcher.Constraint("Horizontal", 7, 2, 12, 2),
    Sketcher.Constraint("Horizontal", 6, 2, 13, 2),
    Sketcher.Constraint("Equal", 3, 9),
    Sketcher.Constraint("Equal", 6, 12),
    Sketcher.Constraint("Equal", 11, 0),
    Sketcher.Constraint("Equal", 14, 5),
    Sketcher.Constraint("DistanceX", 1, 1, 1, 2, Q("2 in")),
    Sketcher.Constraint("DistanceX", 4, 2, 4, 1, Q("1.78 in")),
    Sketcher.Constraint("DistanceY", -1, 1, 4, 2, Q("0.11 in")),
    Sketcher.Constraint("DistanceX", 0, 2, 4, 2, Q("0.11 in")),
    Sketcher.Constraint("DistanceX", 1, 2, 8, 2, Q("0.75 in")),
    Sketcher.Constraint("DistanceX", 8, 2, 12, 2, Q("0.11 in")),
    Sketcher.Constraint("DistanceX", -1, 1, 0, 2, 365.826381),
])
sketch5.setExpression("Constraints[41]", "Params.sketch5_width")
sketch5.setExpression("Constraints[42]", "Params.sketch5_width2")
pad5 = body5.newObject("PartDesign::Pad", "Pad004")
pad5.Profile = sketch5
pad5.setExpression("Length", "Params.pad5_length")
pad5.Reversed = True
body6 = doc.addObject("PartDesign::Body", "Body005")
body6.AllowCompound = True

sketch6 = body6.newObject("Sketcher::SketchObject", "Sketch005")
sketch6.AttachmentSupport = (doc.getObject("XZ_Plane005"), [""])
sketch6.MapMode = "FlatFace"
sketch6.addGeometry([
    Part.LineSegment(V(-452, 57, 0), V(-452, 0, 0)),
    Part.LineSegment(V(-452, 0, 0), V(-395, 0, 0)),
    Part.LineSegment(V(-395, 0, 0), V(-395, 57, 0)),
    Part.LineSegment(V(-395, 57, 0), V(-452, 57, 0)),
    Part.LineSegment(V(-398, 3, 0), V(-450, 3, 0)),
    Part.LineSegment(V(-450, 3, 0), V(-450, 54, 0)),
    Part.LineSegment(V(-450, 54, 0), V(-398, 54, 0)),
    Part.LineSegment(V(-398, 54, 0), V(-398, 3, 0)),
    Part.LineSegment(V(-376, 57, 0), V(-376, 0, 0)),
    Part.LineSegment(V(-376, 0, 0), V(-319, 0, 0)),
    Part.LineSegment(V(-319, 0, 0), V(-319, 57, 0)),
    Part.LineSegment(V(-319, 57, 0), V(-376, 57, 0)),
    Part.LineSegment(V(-322, 3, 0), V(-373, 3, 0)),
    Part.LineSegment(V(-373, 3, 0), V(-373, 54, 0)),
    Part.LineSegment(V(-373, 54, 0), V(-322, 54, 0)),
    Part.LineSegment(V(-322, 54, 0), V(-322, 3, 0)),
], False)
sketch6.addConstraint([
    Sketcher.Constraint("Coincident", 0, 2, 1, 1),
    Sketcher.Constraint("Coincident", 1, 2, 2, 1),
    Sketcher.Constraint("Coincident", 2, 2, 3, 1),
    Sketcher.Constraint("Coincident", 3, 2, 0, 1),
    Sketcher.Constraint("Coincident", 4, 2, 5, 1),
    Sketcher.Constraint("Coincident", 5, 2, 6, 1),
    Sketcher.Constraint("Coincident", 6, 2, 7, 1),
    Sketcher.Constraint("Coincident", 7, 2, 4, 1),
    Sketcher.Constraint("Coincident", 8, 2, 9, 1),
    Sketcher.Constraint("Coincident", 9, 2, 10, 1),
    Sketcher.Constraint("Coincident", 10, 2, 11, 1),
    Sketcher.Constraint("Coincident", 11, 2, 8, 1),
    Sketcher.Constraint("Coincident", 12, 2, 13, 1),
    Sketcher.Constraint("Coincident", 13, 2, 14, 1),
    Sketcher.Constraint("Coincident", 14, 2, 15, 1),
    Sketcher.Constraint("Coincident", 15, 2, 12, 1),
    Sketcher.Constraint("Vertical", 0),
    Sketcher.Constraint("Horizontal", 1),
    Sketcher.Constraint("Vertical", 2),
    Sketcher.Constraint("Horizontal", 3),
    Sketcher.Constraint("Horizontal", 4),
    Sketcher.Constraint("Vertical", 5),
    Sketcher.Constraint("Horizontal", 6),
    Sketcher.Constraint("Vertical", 7),
    Sketcher.Constraint("Vertical", 8),
    Sketcher.Constraint("Horizontal", 9),
    Sketcher.Constraint("Vertical", 10),
    Sketcher.Constraint("Horizontal", 11),
    Sketcher.Constraint("Horizontal", 12),
    Sketcher.Constraint("Vertical", 13),
    Sketcher.Constraint("Horizontal", 14),
    Sketcher.Constraint("Vertical", 15),
    Sketcher.Constraint("PointOnObject", 0, 2, -1),
    Sketcher.Constraint("PointOnObject", 8, 2, -1),
    Sketcher.Constraint("Horizontal", 3, 2, 10, 2),
    Sketcher.Constraint("Horizontal", 7, 2, 12, 2),
    Sketcher.Constraint("Horizontal", 6, 2, 13, 2),
    Sketcher.Constraint("Equal", 3, 9),
    Sketcher.Constraint("Equal", 6, 12),
    Sketcher.Constraint("Equal", 11, 0),
    Sketcher.Constraint("Equal", 14, 5),
    Sketcher.Constraint("DistanceX", 1, 2, 9, 2, Q("3 in")),
    Sketcher.Constraint("DistanceX", 1, 1, 1, 2, Q("2.25 in")),
    Sketcher.Constraint("DistanceX", 4, 2, 4, 1, Q("2.03 in")),
    Sketcher.Constraint("DistanceY", -1, 1, 4, 2, Q("0.11 in")),
    Sketcher.Constraint("DistanceX", 0, 2, 4, 2, Q("0.11 in")),
    Sketcher.Constraint("DistanceX", 8, 2, 12, 2, Q("0.11 in")),
    Sketcher.Constraint("DistanceX", 0, 2, -1, 1, 452.382714),
])
sketch6.setExpression("Constraints[42]", "Params.sketch6_width")
sketch6.setExpression("Constraints[43]", "Params.sketch6_width2")
pad6 = body6.newObject("PartDesign::Pad", "Pad005")
pad6.Profile = sketch6
pad6.setExpression("Length", "Params.pad6_length")
pad6.Reversed = True

doc.recompute()
